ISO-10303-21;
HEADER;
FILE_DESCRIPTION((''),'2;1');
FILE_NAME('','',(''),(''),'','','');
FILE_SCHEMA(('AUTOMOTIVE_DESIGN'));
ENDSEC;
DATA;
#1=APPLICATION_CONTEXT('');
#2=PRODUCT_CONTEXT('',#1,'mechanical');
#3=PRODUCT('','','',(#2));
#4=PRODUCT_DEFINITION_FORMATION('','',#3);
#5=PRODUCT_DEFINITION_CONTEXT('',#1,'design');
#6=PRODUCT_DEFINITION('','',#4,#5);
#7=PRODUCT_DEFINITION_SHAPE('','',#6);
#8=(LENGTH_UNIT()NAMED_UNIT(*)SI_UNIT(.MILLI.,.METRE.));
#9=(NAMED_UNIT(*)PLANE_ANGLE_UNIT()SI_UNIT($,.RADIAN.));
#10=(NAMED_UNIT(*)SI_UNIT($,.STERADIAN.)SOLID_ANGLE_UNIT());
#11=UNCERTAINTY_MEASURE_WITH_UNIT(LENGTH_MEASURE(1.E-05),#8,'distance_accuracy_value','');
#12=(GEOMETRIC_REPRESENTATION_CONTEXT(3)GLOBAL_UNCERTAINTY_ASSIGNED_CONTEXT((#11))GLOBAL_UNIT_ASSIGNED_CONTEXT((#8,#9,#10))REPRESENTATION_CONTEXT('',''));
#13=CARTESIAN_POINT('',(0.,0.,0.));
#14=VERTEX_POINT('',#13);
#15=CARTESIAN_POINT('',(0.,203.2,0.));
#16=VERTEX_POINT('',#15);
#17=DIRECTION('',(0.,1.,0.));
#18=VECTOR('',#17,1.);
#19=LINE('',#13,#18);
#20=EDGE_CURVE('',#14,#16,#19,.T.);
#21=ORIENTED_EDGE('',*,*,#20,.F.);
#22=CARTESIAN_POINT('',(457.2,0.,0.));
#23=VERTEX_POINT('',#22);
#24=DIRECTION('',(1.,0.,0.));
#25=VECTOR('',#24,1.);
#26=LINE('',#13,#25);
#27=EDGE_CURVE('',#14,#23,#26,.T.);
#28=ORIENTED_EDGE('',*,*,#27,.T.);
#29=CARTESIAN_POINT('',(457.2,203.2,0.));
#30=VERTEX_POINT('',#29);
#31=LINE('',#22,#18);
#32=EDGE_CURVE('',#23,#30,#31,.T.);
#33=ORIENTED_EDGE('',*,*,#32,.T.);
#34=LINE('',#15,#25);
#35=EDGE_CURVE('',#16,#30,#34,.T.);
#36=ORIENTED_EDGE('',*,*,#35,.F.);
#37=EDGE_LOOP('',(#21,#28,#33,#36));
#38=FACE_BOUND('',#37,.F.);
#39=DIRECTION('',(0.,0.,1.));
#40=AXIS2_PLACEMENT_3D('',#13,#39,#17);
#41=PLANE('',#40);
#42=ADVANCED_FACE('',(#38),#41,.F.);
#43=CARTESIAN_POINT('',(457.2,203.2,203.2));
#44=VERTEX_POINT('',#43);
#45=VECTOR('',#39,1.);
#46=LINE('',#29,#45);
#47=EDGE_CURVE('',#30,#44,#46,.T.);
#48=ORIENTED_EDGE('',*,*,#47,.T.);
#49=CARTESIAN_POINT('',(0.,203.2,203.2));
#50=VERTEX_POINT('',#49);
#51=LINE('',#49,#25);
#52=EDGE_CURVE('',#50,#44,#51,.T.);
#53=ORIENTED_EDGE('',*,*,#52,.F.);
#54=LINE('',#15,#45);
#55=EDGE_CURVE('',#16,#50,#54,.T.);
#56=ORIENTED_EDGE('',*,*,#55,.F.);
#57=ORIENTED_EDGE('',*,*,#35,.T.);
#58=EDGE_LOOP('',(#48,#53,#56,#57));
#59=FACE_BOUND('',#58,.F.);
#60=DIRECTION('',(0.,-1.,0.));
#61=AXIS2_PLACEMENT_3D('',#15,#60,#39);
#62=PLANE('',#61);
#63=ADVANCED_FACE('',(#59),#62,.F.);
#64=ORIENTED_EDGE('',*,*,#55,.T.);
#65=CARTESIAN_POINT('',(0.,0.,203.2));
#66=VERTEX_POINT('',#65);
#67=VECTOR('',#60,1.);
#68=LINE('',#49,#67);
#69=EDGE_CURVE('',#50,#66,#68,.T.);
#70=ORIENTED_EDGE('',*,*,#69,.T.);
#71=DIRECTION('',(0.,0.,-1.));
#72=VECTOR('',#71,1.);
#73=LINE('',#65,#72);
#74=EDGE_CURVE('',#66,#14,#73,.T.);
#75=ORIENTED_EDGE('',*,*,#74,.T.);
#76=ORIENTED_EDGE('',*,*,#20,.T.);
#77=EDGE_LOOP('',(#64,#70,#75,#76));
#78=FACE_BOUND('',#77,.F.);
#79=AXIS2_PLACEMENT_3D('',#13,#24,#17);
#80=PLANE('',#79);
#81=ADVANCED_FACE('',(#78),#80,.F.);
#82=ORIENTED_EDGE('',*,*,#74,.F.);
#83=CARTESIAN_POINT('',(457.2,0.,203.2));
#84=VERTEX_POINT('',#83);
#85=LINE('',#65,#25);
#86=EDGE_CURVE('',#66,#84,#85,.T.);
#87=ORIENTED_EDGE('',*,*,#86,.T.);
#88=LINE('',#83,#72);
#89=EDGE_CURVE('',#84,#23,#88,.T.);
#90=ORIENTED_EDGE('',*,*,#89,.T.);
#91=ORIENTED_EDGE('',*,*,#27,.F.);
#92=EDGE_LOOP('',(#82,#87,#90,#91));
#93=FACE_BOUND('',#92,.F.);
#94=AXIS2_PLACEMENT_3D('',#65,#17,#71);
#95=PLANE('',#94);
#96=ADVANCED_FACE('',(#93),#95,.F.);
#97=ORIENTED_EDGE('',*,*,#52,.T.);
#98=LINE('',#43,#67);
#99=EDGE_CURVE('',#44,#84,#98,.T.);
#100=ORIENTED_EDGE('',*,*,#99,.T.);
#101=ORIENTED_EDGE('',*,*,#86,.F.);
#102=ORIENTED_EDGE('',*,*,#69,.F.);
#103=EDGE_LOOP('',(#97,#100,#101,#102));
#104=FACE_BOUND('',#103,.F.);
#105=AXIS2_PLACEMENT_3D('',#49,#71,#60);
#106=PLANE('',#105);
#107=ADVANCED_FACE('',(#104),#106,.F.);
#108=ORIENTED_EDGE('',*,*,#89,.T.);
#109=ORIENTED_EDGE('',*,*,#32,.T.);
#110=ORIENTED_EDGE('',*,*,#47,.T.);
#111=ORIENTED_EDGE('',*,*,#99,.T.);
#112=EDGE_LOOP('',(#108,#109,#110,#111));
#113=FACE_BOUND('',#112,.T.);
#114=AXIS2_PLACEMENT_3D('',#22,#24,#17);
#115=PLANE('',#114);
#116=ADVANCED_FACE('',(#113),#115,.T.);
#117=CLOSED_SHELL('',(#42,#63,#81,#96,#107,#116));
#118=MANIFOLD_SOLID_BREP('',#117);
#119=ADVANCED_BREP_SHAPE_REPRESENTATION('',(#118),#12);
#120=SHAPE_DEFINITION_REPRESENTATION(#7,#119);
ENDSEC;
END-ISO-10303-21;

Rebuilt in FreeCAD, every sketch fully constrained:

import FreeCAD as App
import Part
import Sketcher
from FreeCAD import Vector
Q = App.Units.Quantity

doc = App.newDocument("Part")
params = doc.addObject("Spreadsheet::Sheet", "Params")
for row, (alias, value) in enumerate([
    ("sketch1_width", "8 in"),
    ("pad1_length", "18 in"),
], start=1):
    params.set(f"A{row}", alias)
    params.set(f"B{row}", "=" + value)
    params.setAlias(f"B{row}", alias)

body = doc.addObject("PartDesign::Body", "Body")

# Sketch on YZ plane
sketch1 = doc.addObject("Sketcher::SketchObject", "Sketch")
body.addObject(sketch1)
sketch1.AttachmentSupport = (doc.YZ_Plane, [""])
sketch1.MapMode = "FlatFace"
sketch1.addGeometry([
    Part.LineSegment(Vector(0, 203, 0), Vector(0, 0, 0)),
    Part.LineSegment(Vector(0, 0, 0), Vector(203, 0, 0)),
    Part.LineSegment(Vector(203, 0, 0), Vector(203, 203, 0)),
    Part.LineSegment(Vector(203, 203, 0), Vector(0, 203, 0)),
], False)
sketch1.addConstraint([
    Sketcher.Constraint("Coincident", 0, 2, 1, 1),
    Sketcher.Constraint("Coincident", 1, 2, 2, 1),
    Sketcher.Constraint("Coincident", 2, 2, 3, 1),
    Sketcher.Constraint("Coincident", 3, 2, 0, 1),
    Sketcher.Constraint("Vertical", 0),
    Sketcher.Constraint("Horizontal", 1),
    Sketcher.Constraint("Vertical", 2),
    Sketcher.Constraint("Horizontal", 3),
    Sketcher.Constraint("Coincident", 0, 2, -1, 1),
    Sketcher.Constraint("Equal", 3, 0),
    Sketcher.Constraint("DistanceX", 1, 1, 1, 2, Q("8 in")),
])
sketch1.setExpression("Constraints[10]", "Params.sketch1_width")
pad1 = doc.addObject("PartDesign::Pad", "Pad")
body.addObject(pad1)
pad1.Profile = sketch1
pad1.setExpression("Length", "Params.pad1_length")

doc.recompute()
